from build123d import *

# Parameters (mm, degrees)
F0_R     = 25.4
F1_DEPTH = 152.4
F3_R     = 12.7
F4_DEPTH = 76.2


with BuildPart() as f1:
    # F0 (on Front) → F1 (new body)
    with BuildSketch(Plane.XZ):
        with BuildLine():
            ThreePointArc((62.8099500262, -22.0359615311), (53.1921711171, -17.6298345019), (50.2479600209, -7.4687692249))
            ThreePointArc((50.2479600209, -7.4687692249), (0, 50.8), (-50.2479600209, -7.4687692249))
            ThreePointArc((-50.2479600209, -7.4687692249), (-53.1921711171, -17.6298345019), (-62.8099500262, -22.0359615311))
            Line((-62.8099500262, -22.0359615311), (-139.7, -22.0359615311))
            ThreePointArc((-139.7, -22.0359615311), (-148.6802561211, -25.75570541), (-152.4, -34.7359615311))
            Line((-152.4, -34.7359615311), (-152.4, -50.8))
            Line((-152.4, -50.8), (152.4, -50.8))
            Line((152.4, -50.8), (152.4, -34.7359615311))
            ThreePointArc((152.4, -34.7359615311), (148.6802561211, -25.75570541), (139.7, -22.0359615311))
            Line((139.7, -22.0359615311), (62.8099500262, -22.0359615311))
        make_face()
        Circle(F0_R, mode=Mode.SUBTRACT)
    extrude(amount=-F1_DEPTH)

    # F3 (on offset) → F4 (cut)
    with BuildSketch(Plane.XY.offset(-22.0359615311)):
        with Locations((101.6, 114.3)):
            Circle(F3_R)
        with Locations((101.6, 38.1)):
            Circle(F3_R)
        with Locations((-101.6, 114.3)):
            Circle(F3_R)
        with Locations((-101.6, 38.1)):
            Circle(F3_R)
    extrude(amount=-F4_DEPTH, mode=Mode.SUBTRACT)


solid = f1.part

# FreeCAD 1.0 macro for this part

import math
import FreeCAD as App
import Part
import Sketcher

V = App.Vector
Q = App.Units.Quantity

doc = App.newDocument("Part")
body = doc.addObject("PartDesign::Body", "Body")

sketch1 = body.newObject("Sketcher::SketchObject", "Sketch")
sketch1.AttachmentSupport = (doc.getObject("XZ_Plane"), [""])
sketch1.MapMode = "FlatFace"
sketch1.addGeometry([
    Part.ArcOfCircle(Part.Circle(V(63, -9, 0), V(0, 0, 1), 13), math.radians(172), math.radians(270)),
    Part.ArcOfCircle(Part.Circle(V(0, 0, 0), V(0, 0, 1), 51), math.radians(-8), math.radians(188)),
    Part.ArcOfCircle(Part.Circle(V(-63, -9, 0), V(0, 0, 1), 13), math.radians(-90), math.radians(8)),
    Part.LineSegment(V(-63, -22, 0), V(-140, -22, 0)),
    Part.ArcOfCircle(Part.Circle(V(-140, -35, 0), V(0, 0, 1), 13), math.radians(90), math.radians(180)),
    Part.LineSegment(V(-152, -35, 0), V(-152, -51, 0)),
    Part.LineSegment(V(-152, -51, 0), V(152, -51, 0)),
    Part.LineSegment(V(152, -51, 0), V(152, -35, 0)),
    Part.ArcOfCircle(Part.Circle(V(140, -35, 0), V(0, 0, 1), 13), math.radians(0), math.radians(90)),
    Part.LineSegment(V(140, -22, 0), V(63, -22, 0)),
    Part.Circle(V(0, 0, 0), V(0, 0, 1), 25),
], False)
sketch1.addConstraint([
    Sketcher.Constraint("Tangent", 0, 1, 1, 1),
    Sketcher.Constraint("Tangent", 1, 2, 2, 2),
    Sketcher.Constraint("Tangent", 2, 1, 3, 1),
    Sketcher.Constraint("Tangent", 3, 2, 4, 1),
    Sketcher.Constraint("Tangent", 4, 2, 5, 1),
    Sketcher.Constraint("Coincident", 5, 2, 6, 1),
    Sketcher.Constraint("Coincident", 6, 2, 7, 1),
    Sketcher.Constraint("Tangent", 7, 2, 8, 1),
    Sketcher.Constraint("Tangent", 8, 2, 9, 1),
    Sketcher.Constraint("Tangent", 9, 2, 0, 2),
    Sketcher.Constraint("Horizontal", 3),
    Sketcher.Constraint("Vertical", 5),
    Sketcher.Constraint("Horizontal", 6),
    Sketcher.Constraint("Vertical", 7),
    Sketcher.Constraint("Horizontal", 9),
    Sketcher.Constraint("Coincident", 1, 3, -1, 1),
    Sketcher.Constraint("Coincident", 10, 3, -1, 1),
    Sketcher.Constraint("Equal", 0, 2),
    Sketcher.Constraint("Equal", 2, 4),
    Sketcher.Constraint("Equal", 4, 8),
    Sketcher.Constraint("Symmetric", 4, 3, 8, 3, -2),
    Sketcher.Constraint("Diameter", 10, Q("2 in")),
    Sketcher.Constraint("Radius", 1, Q("2 in")),
    Sketcher.Constraint("Radius", 0, Q("0.5 in")),
    Sketcher.Constraint("DistanceX", 6, 1, 6, 2, Q("12 in")),
    Sketcher.Constraint("DistanceY", 5, 2, -1, 1, Q("2 in")),
    Sketcher.Constraint("DistanceX", 3, 2, 3, 1, Q("76.89005 mm")),
])
pad1 = body.newObject("PartDesign::Pad", "Pad")
pad1.Profile = sketch1
pad1.Length = Q("6 in")
pad1.Reversed = True

sketch2 = body.newObject("Sketcher::SketchObject", "Sketch001")
sketch2.AttachmentSupport = (doc.getObject("XY_Plane"), [""])
sketch2.MapMode = "FlatFace"
sketch2.AttachmentOffset = App.Placement(V(0, 0, -22.035962), App.Rotation())
sketch2.addGeometry([
    Part.Circle(V(102, 114, 0), V(0, 0, 1), 13),
    Part.Circle(V(102, 38, 0), V(0, 0, 1), 13),
    Part.Circle(V(-102, 114, 0), V(0, 0, 1), 13),
    Part.Circle(V(-102, 38, 0), V(0, 0, 1), 13),
], False)
sketch2.addConstraint([
    Sketcher.Constraint("Equal", 0, 1),
    Sketcher.Constraint("Equal", 1, 2),
    Sketcher.Constraint("Equal", 2, 3),
    Sketcher.Constraint("Symmetric", 0, 3, 2, 3, -2),
    Sketcher.Constraint("Symmetric", 1, 3, 3, 3, -2),
    Sketcher.Constraint("Vertical", 0, 3, 1, 3),
    Sketcher.Constraint("Diameter", 0, Q("1 in")),
    Sketcher.Constraint("DistanceX", -1, 1, 0, 3, Q("4 in")),
    Sketcher.Constraint("DistanceY", 1, 3, 0, 3, Q("3 in")),
    Sketcher.Constraint("DistanceY", -1, 1, 0, 3, Q("4.5 in")),
])
pocket1 = body.newObject("PartDesign::Pocket", "Pocket")
pocket1.Profile = sketch2
pocket1.Length = Q("3 in")

doc.recompute()
